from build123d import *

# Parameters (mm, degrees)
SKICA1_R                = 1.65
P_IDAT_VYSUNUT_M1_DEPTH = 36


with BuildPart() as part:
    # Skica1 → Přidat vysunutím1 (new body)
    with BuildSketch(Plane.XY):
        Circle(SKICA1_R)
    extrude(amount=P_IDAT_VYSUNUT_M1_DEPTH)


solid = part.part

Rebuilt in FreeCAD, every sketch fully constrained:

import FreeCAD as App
import Part
import Sketcher

V = App.Vector
Q = App.Units.Quantity

doc = App.newDocument("Part")
body = doc.addObject("PartDesign::Body", "Body")

sketch1 = body.newObject("Sketcher::SketchObject", "Sketch")
sketch1.AttachmentSupport = (doc.getObject("XY_Plane"), [""])
sketch1.MapMode = "FlatFace"
sketch1.addGeometry(Part.Circle(V(0, 0, 0), V(0, 0, 1), 1.65), False)
sketch1.addConstraint(Sketcher.Constraint("Coincident", 0, 3, -1, 1))
sketch1.addConstraint(Sketcher.Constraint("Diameter", 0, Q("3.3 mm")))
pad1 = body.newObject("PartDesign::Pad", "Pad")
pad1.Profile = sketch1
pad1.Length = 36

doc.recompute()
